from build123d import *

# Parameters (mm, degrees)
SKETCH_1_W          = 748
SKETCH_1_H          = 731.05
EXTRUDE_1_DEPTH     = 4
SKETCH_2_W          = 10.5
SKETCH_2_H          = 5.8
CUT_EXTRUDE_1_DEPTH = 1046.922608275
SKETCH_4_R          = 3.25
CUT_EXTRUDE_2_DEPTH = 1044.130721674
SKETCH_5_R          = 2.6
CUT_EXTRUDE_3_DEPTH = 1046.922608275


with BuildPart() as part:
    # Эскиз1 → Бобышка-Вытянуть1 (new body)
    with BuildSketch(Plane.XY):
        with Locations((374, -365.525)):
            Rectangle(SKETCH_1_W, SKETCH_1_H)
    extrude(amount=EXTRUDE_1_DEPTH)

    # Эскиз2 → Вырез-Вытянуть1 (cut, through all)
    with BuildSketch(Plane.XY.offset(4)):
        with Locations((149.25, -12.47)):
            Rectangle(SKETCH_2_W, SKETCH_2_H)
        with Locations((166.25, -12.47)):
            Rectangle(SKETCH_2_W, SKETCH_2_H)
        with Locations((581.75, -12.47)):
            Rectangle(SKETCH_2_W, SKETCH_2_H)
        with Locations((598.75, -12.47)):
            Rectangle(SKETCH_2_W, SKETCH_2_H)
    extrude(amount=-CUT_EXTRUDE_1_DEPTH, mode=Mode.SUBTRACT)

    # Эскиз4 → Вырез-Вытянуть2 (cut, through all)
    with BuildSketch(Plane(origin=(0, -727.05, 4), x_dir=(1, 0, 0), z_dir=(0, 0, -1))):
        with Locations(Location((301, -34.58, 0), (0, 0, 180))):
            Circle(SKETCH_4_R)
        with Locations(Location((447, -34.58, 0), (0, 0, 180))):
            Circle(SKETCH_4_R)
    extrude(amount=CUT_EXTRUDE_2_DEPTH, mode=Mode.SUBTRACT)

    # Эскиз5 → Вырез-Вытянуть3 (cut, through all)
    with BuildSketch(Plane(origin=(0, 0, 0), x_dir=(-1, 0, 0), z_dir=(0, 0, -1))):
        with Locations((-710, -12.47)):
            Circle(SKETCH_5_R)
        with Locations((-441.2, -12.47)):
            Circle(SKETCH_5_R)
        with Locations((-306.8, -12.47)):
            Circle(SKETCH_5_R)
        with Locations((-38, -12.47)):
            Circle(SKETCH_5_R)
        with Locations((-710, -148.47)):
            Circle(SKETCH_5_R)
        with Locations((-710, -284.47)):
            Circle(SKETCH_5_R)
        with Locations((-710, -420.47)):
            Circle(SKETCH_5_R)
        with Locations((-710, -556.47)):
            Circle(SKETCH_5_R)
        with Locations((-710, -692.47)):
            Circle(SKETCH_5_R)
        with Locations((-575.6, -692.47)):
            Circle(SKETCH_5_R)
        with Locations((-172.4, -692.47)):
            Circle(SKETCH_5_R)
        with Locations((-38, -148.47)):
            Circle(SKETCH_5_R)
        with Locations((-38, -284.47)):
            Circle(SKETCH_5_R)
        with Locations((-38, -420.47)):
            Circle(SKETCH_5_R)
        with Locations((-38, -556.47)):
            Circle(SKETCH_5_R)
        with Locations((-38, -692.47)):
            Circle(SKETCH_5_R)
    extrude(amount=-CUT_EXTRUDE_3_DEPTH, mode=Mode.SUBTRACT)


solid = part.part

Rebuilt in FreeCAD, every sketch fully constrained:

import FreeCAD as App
import Part
import Sketcher

V = App.Vector

doc = App.newDocument("Part")
body = doc.addObject("PartDesign::Body", "Body")

sketch1 = doc.addObject("Sketcher::SketchObject", "Sketch")
body.addObject(sketch1)
sketch1.AttachmentSupport = (doc.XY_Plane, [""])
sketch1.MapMode = "FlatFace"
sketch1.addGeometry([
    Part.LineSegment(V(0, 0, 0), V(0, -731, 0)),
    Part.LineSegment(V(0, -731, 0), V(748, -731, 0)),
    Part.LineSegment(V(748, -731, 0), V(748, 0, 0)),
    Part.LineSegment(V(748, 0, 0), V(0, 0, 0)),
], False)
sketch1.addConstraint([
    Sketcher.Constraint("Coincident", 0, 2, 1, 1),
    Sketcher.Constraint("Coincident", 1, 2, 2, 1),
    Sketcher.Constraint("Coincident", 2, 2, 3, 1),
    Sketcher.Constraint("Coincident", 3, 2, 0, 1),
    Sketcher.Constraint("Vertical", 0),
    Sketcher.Constraint("Horizontal", 1),
    Sketcher.Constraint("Vertical", 2),
    Sketcher.Constraint("Horizontal", 3),
    Sketcher.Constraint("Coincident", 3, 2, -1, 1),
    Sketcher.Constraint("DistanceX", 1, 1, 1, 2, 748.0),
    Sketcher.Constraint("DistanceY", 0, 2, 0, 1, 731.05),
])
pad1 = doc.addObject("PartDesign::Pad", "Pad")
body.addObject(pad1)
pad1.Profile = sketch1
pad1.Length = 4

sketch2 = doc.addObject("Sketcher::SketchObject", "Sketch001")
body.addObject(sketch2)
sketch2.AttachmentSupport = (doc.XY_Plane, [""])
sketch2.MapMode = "FlatFace"
sketch2.AttachmentOffset = App.Placement(V(0, 0, 4), App.Rotation())
sketch2.addGeometry([
    Part.LineSegment(V(144, -10, 0), V(144, -15, 0)),
    Part.LineSegment(V(144, -15, 0), V(154, -15, 0)),
    Part.LineSegment(V(154, -15, 0), V(154, -10, 0)),
    Part.LineSegment(V(154, -10, 0), V(144, -10, 0)),
    Part.LineSegment(V(161, -10, 0), V(161, -15, 0)),
    Part.LineSegment(V(161, -15, 0), V(172, -15, 0)),
    Part.LineSegment(V(172, -15, 0), V(172, -10, 0)),
    Part.LineSegment(V(172, -10, 0), V(161, -10, 0)),
    Part.LineSegment(V(576, -10, 0), V(576, -15, 0)),
    Part.LineSegment(V(576, -15, 0), V(587, -15, 0)),
    Part.LineSegment(V(587, -15, 0), V(587, -10, 0)),
    Part.LineSegment(V(587, -10, 0), V(576, -10, 0)),
    Part.LineSegment(V(594, -10, 0), V(594, -15, 0)),
    Part.LineSegment(V(594, -15, 0), V(604, -15, 0)),
    Part.LineSegment(V(604, -15, 0), V(604, -10, 0)),
    Part.LineSegment(V(604, -10, 0), V(594, -10, 0)),
], False)
sketch2.addConstraint([
    Sketcher.Constraint("Coincident", 0, 2, 1, 1),
    Sketcher.Constraint("Coincident", 1, 2, 2, 1),
    Sketcher.Constraint("Coincident", 2, 2, 3, 1),
    Sketcher.Constraint("Coincident", 3, 2, 0, 1),
    Sketcher.Constraint("Coincident", 4, 2, 5, 1),
    Sketcher.Constraint("Coincident", 5, 2, 6, 1),
    Sketcher.Constraint("Coincident", 6, 2, 7, 1),
    Sketcher.Constraint("Coincident", 7, 2, 4, 1),
    Sketcher.Constraint("Coincident", 8, 2, 9, 1),
    Sketcher.Constraint("Coincident", 9, 2, 10, 1),
    Sketcher.Constraint("Coincident", 10, 2, 11, 1),
    Sketcher.Constraint("Coincident", 11, 2, 8, 1),
    Sketcher.Constraint("Coincident", 12, 2, 13, 1),
    Sketcher.Constraint("Coincident", 13, 2, 14, 1),
    Sketcher.Constraint("Coincident", 14, 2, 15, 1),
    Sketcher.Constraint("Coincident", 15, 2, 12, 1),
    Sketcher.Constraint("Vertical", 0),
    Sketcher.Constraint("Horizontal", 1),
    Sketcher.Constraint("Vertical", 2),
    Sketcher.Constraint("Horizontal", 3),
    Sketcher.Constraint("Vertical", 4),
    Sketcher.Constraint("Horizontal", 5),
    Sketcher.Constraint("Vertical", 6),
    Sketcher.Constraint("Horizontal", 7),
    Sketcher.Constraint("Vertical", 8),
    Sketcher.Constraint("Horizontal", 9),
    Sketcher.Constraint("Vertical", 10),
    Sketcher.Constraint("Horizontal", 11),
    Sketcher.Constraint("Vertical", 12),
    Sketcher.Constraint("Horizontal", 13),
    Sketcher.Constraint("Vertical", 14),
    Sketcher.Constraint("Horizontal", 15),
    Sketcher.Constraint("Horizontal", 1, 2, 4, 2),
    Sketcher.Constraint("Horizontal", 3, 2, 6, 2),
    Sketcher.Constraint("Horizontal", 5, 2, 8, 2),
    Sketcher.Constraint("Horizontal", 7, 2, 10, 2),
    Sketcher.Constraint("Horizontal", 9, 2, 12, 2),
    Sketcher.Constraint("Horizontal", 11, 2, 14, 2),
    Sketcher.Constraint("Equal", 3, 5),
    Sketcher.Constraint("Equal", 7, 9),
    Sketcher.Constraint("Equal", 11, 13),
    Sketcher.Constraint("DistanceX", 1, 1, 1, 2, 10.5),
    Sketcher.Constraint("DistanceY", 0, 2, 0, 1, 5.8),
    Sketcher.Constraint("DistanceX", -1, 1, 0, 2, 144.0),
    Sketcher.Constraint("DistanceX", -1, 1, 4, 2, 161.0),
    Sketcher.Constraint("DistanceX", -1, 1, 9, 2, 587.0),
    Sketcher.Constraint("DistanceX", -1, 1, 13, 2, 604.0),
    Sketcher.Constraint("DistanceY", 0, 2, -1, 1, 15.37),
])
pocket1 = doc.addObject("PartDesign::Pocket", "Pocket")
body.addObject(pocket1)
pocket1.Profile = sketch2
pocket1.Type = "ThroughAll"

sketch3 = doc.addObject("Sketcher::SketchObject", "Sketch002")
body.addObject(sketch3)
sketch3.AttachmentSupport = (doc.XY_Plane, [""])
sketch3.MapMode = "FlatFace"
sketch3.AttachmentOffset = App.Placement(V(0, 0, 4), App.Rotation())
sketch3.addGeometry([
    Part.Circle(V(301, -692.5, 0), V(0, 0, 1), 3.2),
    Part.Circle(V(447, -692.5, 0), V(0, 0, 1), 3.2),
], False)
sketch3.addConstraint([
    Sketcher.Constraint("Equal", 0, 1),
    Sketcher.Constraint("Horizontal", 0, 3, 1, 3),
    Sketcher.Constraint("Diameter", 0, 6.5),
    Sketcher.Constraint("DistanceX", -1, 1, 0, 3, 301.0),
    Sketcher.Constraint("DistanceX", -1, 1, 1, 3, 447.0),
    Sketcher.Constraint("DistanceY", 0, 3, -1, 1, 692.47),
])
pocket2 = doc.addObject("PartDesign::Pocket", "Pocket001")
body.addObject(pocket2)
pocket2.Profile = sketch3
pocket2.Type = "ThroughAll"

sketch4 = doc.addObject("Sketcher::SketchObject", "Sketch003")
body.addObject(sketch4)
sketch4.AttachmentSupport = (doc.XY_Plane, [""])
sketch4.MapMode = "FlatFace"
sketch4.addGeometry([
    Part.Circle(V(710, -12.5, 0), V(0, 0, 1), 2.6),
    Part.Circle(V(441.2, -12.5, 0), V(0, 0, 1), 2.6),
    Part.Circle(V(306.8, -12.5, 0), V(0, 0, 1), 2.6),
    Part.Circle(V(38, -12.5, 0), V(0, 0, 1), 2.6),
    Part.Circle(V(710, -148.5, 0), V(0, 0, 1), 2.6),
    Part.Circle(V(710, -284.5, 0), V(0, 0, 1), 2.6),
    Part.Circle(V(710, -420.5, 0), V(0, 0, 1), 2.6),
    Part.Circle(V(710, -556.5, 0), V(0, 0, 1), 2.6),
    Part.Circle(V(710, -692.5, 0), V(0, 0, 1), 2.6),
    Part.Circle(V(575.6, -692.5, 0), V(0, 0, 1), 2.6),
    Part.Circle(V(172.4, -692.5, 0), V(0, 0, 1), 2.6),
    Part.Circle(V(38, -148.5, 0), V(0, 0, 1), 2.6),
    Part.Circle(V(38, -284.5, 0), V(0, 0, 1), 2.6),
    Part.Circle(V(38, -420.5, 0), V(0, 0, 1), 2.6),
    Part.Circle(V(38, -556.5, 0), V(0, 0, 1), 2.6),
    Part.Circle(V(38, -692.5, 0), V(0, 0, 1), 2.6),
], False)
sketch4.addConstraint([
    Sketcher.Constraint("Equal", 0, 1),
    Sketcher.Constraint("Equal", 1, 2),
    Sketcher.Constraint("Equal", 2, 3),
    Sketcher.Constraint("Equal", 3, 4),
    Sketcher.Constraint("Equal", 4, 5),
    Sketcher.Constraint("Equal", 5, 6),
    Sketcher.Constraint("Equal", 6, 7),
    Sketcher.Constraint("Equal", 7, 8),
    Sketcher.Constraint("Equal", 8, 9),
    Sketcher.Constraint("Equal", 9, 10),
    Sketcher.Constraint("Equal", 10, 11),
    Sketcher.Constraint("Equal", 11, 12),
    Sketcher.Constraint("Equal", 12, 13),
    Sketcher.Constraint("Equal", 13, 14),
    Sketcher.Constraint("Equal", 14, 15),
    Sketcher.Constraint("Horizontal", 0, 3, 1, 3),
    Sketcher.Constraint("Horizontal", 1, 3, 2, 3),
    Sketcher.Constraint("Horizontal", 2, 3, 3, 3),
    Sketcher.Constraint("Horizontal", 8, 3, 9, 3),
    Sketcher.Constraint("Horizontal", 9, 3, 10, 3),
    Sketcher.Constraint("Horizontal", 4, 3, 11, 3),
    Sketcher.Constraint("Horizontal", 5, 3, 12, 3),
    Sketcher.Constraint("Horizontal", 6, 3, 13, 3),
    Sketcher.Constraint("Horizontal", 7, 3, 14, 3),
    Sketcher.Constraint("Horizontal", 10, 3, 15, 3),
    Sketcher.Constraint("Vertical", 0, 3, 4, 3),
    Sketcher.Constraint("Vertical", 4, 3, 5, 3),
    Sketcher.Constraint("Vertical", 5, 3, 6, 3),
    Sketcher.Constraint("Vertical", 6, 3, 7, 3),
    Sketcher.Constraint("Vertical", 7, 3, 8, 3),
    Sketcher.Constraint("Vertical", 3, 3, 11, 3),
    Sketcher.Constraint("Vertical", 11, 3, 12, 3),
    Sketcher.Constraint("Vertical", 12, 3, 13, 3),
    Sketcher.Constraint("Vertical", 13, 3, 14, 3),
    Sketcher.Constraint("Vertical", 14, 3, 15, 3),
    Sketcher.Constraint("Diameter", 0, 5.2),
    Sketcher.Constraint("DistanceX", -1, 1, 0, 3, 710.0),
    Sketcher.Constraint("DistanceX", -1, 1, 3, 3, 38.0),
    Sketcher.Constraint("DistanceY", 4, 3, 0, 3, 136.0),
    Sketcher.Constraint("DistanceY", 5, 3, 4, 3, 136.0),
    Sketcher.Constraint("DistanceY", 6, 3, 5, 3, 136.0),
    Sketcher.Constraint("DistanceY", 7, 3, 6, 3, 136.0),
    Sketcher.Constraint("DistanceY", 8, 3, 7, 3, 136.0),
    Sketcher.Constraint("DistanceX", -1, 1, 1, 3, 441.2),
    Sketcher.Constraint("DistanceX", -1, 1, 2, 3, 306.8),
    Sketcher.Constraint("DistanceX", -1, 1, 9, 3, 575.6),
    Sketcher.Constraint("DistanceX", -1, 1, 10, 3, 172.4),
    Sketcher.Constraint("DistanceY", 0, 3, -1, 1, 12.47),
])
pocket3 = doc.addObject("PartDesign::Pocket", "Pocket002")
body.addObject(pocket3)
pocket3.Profile = sketch4
pocket3.Type = "ThroughAll"
pocket3.Reversed = True

doc.recompute()
